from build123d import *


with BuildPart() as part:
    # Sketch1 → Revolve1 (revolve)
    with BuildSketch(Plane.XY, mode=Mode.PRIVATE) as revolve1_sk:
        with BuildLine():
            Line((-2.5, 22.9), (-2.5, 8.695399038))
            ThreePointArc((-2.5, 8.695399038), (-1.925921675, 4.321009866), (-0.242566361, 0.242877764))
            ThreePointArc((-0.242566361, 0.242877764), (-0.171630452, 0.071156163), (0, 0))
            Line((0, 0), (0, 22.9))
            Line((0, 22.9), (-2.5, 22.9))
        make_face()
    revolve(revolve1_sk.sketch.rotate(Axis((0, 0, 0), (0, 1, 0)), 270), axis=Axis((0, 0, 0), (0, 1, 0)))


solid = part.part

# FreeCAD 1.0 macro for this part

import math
import FreeCAD as App
import Part
import Sketcher
from FreeCAD import Vector

doc = App.newDocument("Part")
params = doc.addObject("Spreadsheet::Sheet", "Params")
for row, (alias, value) in enumerate([
    ("sketch1_width", "2.5 mm"),
    ("sketch1_height", "22.9 mm"),
    ("revolution_angle", "360 deg"),
], start=1):
    params.set(f"A{row}", alias)
    params.set(f"B{row}", "=" + value)
    params.setAlias(f"B{row}", alias)

body = doc.addObject("PartDesign::Body", "Body")

sketch1 = body.newObject("Sketcher::SketchObject", "Sketch")
sketch1.AttachmentSupport = (doc.getObject("XY_Plane"), [""])
sketch1.MapMode = "FlatFace"
sketch1.addGeometry([
    Part.LineSegment(Vector(-2.5, 22.9, 0), Vector(-2.5, 8.7, 0)),
    Part.ArcOfCircle(Part.Circle(Vector(14.45, 8.7, 0), Vector(0, 0, 1), 16.95), math.radians(-180), math.radians(-150)),
    Part.ArcOfCircle(Part.Circle(Vector(0, 0.24, 0), Vector(0, 0, 1), 0.24), math.radians(180), math.radians(270)),
    Part.LineSegment(Vector(0, 0, 0), Vector(0, 22.9, 0)),
    Part.LineSegment(Vector(0, 22.9, 0), Vector(-2.5, 22.9, 0)),
], False)
sketch1.addConstraint([
    Sketcher.Constraint("Tangent", 0, 2, 1, 1),
    Sketcher.Constraint("Coincident", 1, 2, 2, 1),
    Sketcher.Constraint("Coincident", 2, 2, 3, 1),
    Sketcher.Constraint("Coincident", 3, 2, 4, 1),
    Sketcher.Constraint("Coincident", 4, 2, 0, 1),
    Sketcher.Constraint("Vertical", 0),
    Sketcher.Constraint("Vertical", 3),
    Sketcher.Constraint("Horizontal", 4),
    Sketcher.Constraint("Coincident", 2, 2, -1, 1),
    Sketcher.Constraint("PointOnObject", 2, 3, -2),
    Sketcher.Constraint("DistanceX", 4, 2, 4, 1, 2.5),
    Sketcher.Constraint("DistanceY", 3, 1, 3, 2, 22.9),
    Sketcher.Constraint("DistanceY", 0, 2, 0, 1, 14.204601),
    Sketcher.Constraint("Radius", 1, 16.953128),
    Sketcher.Constraint("Radius", 2, 0.242567),
])
sketch1.setExpression("Constraints[10]", "Params.sketch1_width")
sketch1.setExpression("Constraints[11]", "Params.sketch1_height")
revolution = body.newObject("PartDesign::Revolution", "Revolution")
revolution.Profile = sketch1
revolution.ReferenceAxis = (sketch1, ["V_Axis"])
revolution.setExpression("Angle", "Params.revolution_angle")

doc.recompute()
